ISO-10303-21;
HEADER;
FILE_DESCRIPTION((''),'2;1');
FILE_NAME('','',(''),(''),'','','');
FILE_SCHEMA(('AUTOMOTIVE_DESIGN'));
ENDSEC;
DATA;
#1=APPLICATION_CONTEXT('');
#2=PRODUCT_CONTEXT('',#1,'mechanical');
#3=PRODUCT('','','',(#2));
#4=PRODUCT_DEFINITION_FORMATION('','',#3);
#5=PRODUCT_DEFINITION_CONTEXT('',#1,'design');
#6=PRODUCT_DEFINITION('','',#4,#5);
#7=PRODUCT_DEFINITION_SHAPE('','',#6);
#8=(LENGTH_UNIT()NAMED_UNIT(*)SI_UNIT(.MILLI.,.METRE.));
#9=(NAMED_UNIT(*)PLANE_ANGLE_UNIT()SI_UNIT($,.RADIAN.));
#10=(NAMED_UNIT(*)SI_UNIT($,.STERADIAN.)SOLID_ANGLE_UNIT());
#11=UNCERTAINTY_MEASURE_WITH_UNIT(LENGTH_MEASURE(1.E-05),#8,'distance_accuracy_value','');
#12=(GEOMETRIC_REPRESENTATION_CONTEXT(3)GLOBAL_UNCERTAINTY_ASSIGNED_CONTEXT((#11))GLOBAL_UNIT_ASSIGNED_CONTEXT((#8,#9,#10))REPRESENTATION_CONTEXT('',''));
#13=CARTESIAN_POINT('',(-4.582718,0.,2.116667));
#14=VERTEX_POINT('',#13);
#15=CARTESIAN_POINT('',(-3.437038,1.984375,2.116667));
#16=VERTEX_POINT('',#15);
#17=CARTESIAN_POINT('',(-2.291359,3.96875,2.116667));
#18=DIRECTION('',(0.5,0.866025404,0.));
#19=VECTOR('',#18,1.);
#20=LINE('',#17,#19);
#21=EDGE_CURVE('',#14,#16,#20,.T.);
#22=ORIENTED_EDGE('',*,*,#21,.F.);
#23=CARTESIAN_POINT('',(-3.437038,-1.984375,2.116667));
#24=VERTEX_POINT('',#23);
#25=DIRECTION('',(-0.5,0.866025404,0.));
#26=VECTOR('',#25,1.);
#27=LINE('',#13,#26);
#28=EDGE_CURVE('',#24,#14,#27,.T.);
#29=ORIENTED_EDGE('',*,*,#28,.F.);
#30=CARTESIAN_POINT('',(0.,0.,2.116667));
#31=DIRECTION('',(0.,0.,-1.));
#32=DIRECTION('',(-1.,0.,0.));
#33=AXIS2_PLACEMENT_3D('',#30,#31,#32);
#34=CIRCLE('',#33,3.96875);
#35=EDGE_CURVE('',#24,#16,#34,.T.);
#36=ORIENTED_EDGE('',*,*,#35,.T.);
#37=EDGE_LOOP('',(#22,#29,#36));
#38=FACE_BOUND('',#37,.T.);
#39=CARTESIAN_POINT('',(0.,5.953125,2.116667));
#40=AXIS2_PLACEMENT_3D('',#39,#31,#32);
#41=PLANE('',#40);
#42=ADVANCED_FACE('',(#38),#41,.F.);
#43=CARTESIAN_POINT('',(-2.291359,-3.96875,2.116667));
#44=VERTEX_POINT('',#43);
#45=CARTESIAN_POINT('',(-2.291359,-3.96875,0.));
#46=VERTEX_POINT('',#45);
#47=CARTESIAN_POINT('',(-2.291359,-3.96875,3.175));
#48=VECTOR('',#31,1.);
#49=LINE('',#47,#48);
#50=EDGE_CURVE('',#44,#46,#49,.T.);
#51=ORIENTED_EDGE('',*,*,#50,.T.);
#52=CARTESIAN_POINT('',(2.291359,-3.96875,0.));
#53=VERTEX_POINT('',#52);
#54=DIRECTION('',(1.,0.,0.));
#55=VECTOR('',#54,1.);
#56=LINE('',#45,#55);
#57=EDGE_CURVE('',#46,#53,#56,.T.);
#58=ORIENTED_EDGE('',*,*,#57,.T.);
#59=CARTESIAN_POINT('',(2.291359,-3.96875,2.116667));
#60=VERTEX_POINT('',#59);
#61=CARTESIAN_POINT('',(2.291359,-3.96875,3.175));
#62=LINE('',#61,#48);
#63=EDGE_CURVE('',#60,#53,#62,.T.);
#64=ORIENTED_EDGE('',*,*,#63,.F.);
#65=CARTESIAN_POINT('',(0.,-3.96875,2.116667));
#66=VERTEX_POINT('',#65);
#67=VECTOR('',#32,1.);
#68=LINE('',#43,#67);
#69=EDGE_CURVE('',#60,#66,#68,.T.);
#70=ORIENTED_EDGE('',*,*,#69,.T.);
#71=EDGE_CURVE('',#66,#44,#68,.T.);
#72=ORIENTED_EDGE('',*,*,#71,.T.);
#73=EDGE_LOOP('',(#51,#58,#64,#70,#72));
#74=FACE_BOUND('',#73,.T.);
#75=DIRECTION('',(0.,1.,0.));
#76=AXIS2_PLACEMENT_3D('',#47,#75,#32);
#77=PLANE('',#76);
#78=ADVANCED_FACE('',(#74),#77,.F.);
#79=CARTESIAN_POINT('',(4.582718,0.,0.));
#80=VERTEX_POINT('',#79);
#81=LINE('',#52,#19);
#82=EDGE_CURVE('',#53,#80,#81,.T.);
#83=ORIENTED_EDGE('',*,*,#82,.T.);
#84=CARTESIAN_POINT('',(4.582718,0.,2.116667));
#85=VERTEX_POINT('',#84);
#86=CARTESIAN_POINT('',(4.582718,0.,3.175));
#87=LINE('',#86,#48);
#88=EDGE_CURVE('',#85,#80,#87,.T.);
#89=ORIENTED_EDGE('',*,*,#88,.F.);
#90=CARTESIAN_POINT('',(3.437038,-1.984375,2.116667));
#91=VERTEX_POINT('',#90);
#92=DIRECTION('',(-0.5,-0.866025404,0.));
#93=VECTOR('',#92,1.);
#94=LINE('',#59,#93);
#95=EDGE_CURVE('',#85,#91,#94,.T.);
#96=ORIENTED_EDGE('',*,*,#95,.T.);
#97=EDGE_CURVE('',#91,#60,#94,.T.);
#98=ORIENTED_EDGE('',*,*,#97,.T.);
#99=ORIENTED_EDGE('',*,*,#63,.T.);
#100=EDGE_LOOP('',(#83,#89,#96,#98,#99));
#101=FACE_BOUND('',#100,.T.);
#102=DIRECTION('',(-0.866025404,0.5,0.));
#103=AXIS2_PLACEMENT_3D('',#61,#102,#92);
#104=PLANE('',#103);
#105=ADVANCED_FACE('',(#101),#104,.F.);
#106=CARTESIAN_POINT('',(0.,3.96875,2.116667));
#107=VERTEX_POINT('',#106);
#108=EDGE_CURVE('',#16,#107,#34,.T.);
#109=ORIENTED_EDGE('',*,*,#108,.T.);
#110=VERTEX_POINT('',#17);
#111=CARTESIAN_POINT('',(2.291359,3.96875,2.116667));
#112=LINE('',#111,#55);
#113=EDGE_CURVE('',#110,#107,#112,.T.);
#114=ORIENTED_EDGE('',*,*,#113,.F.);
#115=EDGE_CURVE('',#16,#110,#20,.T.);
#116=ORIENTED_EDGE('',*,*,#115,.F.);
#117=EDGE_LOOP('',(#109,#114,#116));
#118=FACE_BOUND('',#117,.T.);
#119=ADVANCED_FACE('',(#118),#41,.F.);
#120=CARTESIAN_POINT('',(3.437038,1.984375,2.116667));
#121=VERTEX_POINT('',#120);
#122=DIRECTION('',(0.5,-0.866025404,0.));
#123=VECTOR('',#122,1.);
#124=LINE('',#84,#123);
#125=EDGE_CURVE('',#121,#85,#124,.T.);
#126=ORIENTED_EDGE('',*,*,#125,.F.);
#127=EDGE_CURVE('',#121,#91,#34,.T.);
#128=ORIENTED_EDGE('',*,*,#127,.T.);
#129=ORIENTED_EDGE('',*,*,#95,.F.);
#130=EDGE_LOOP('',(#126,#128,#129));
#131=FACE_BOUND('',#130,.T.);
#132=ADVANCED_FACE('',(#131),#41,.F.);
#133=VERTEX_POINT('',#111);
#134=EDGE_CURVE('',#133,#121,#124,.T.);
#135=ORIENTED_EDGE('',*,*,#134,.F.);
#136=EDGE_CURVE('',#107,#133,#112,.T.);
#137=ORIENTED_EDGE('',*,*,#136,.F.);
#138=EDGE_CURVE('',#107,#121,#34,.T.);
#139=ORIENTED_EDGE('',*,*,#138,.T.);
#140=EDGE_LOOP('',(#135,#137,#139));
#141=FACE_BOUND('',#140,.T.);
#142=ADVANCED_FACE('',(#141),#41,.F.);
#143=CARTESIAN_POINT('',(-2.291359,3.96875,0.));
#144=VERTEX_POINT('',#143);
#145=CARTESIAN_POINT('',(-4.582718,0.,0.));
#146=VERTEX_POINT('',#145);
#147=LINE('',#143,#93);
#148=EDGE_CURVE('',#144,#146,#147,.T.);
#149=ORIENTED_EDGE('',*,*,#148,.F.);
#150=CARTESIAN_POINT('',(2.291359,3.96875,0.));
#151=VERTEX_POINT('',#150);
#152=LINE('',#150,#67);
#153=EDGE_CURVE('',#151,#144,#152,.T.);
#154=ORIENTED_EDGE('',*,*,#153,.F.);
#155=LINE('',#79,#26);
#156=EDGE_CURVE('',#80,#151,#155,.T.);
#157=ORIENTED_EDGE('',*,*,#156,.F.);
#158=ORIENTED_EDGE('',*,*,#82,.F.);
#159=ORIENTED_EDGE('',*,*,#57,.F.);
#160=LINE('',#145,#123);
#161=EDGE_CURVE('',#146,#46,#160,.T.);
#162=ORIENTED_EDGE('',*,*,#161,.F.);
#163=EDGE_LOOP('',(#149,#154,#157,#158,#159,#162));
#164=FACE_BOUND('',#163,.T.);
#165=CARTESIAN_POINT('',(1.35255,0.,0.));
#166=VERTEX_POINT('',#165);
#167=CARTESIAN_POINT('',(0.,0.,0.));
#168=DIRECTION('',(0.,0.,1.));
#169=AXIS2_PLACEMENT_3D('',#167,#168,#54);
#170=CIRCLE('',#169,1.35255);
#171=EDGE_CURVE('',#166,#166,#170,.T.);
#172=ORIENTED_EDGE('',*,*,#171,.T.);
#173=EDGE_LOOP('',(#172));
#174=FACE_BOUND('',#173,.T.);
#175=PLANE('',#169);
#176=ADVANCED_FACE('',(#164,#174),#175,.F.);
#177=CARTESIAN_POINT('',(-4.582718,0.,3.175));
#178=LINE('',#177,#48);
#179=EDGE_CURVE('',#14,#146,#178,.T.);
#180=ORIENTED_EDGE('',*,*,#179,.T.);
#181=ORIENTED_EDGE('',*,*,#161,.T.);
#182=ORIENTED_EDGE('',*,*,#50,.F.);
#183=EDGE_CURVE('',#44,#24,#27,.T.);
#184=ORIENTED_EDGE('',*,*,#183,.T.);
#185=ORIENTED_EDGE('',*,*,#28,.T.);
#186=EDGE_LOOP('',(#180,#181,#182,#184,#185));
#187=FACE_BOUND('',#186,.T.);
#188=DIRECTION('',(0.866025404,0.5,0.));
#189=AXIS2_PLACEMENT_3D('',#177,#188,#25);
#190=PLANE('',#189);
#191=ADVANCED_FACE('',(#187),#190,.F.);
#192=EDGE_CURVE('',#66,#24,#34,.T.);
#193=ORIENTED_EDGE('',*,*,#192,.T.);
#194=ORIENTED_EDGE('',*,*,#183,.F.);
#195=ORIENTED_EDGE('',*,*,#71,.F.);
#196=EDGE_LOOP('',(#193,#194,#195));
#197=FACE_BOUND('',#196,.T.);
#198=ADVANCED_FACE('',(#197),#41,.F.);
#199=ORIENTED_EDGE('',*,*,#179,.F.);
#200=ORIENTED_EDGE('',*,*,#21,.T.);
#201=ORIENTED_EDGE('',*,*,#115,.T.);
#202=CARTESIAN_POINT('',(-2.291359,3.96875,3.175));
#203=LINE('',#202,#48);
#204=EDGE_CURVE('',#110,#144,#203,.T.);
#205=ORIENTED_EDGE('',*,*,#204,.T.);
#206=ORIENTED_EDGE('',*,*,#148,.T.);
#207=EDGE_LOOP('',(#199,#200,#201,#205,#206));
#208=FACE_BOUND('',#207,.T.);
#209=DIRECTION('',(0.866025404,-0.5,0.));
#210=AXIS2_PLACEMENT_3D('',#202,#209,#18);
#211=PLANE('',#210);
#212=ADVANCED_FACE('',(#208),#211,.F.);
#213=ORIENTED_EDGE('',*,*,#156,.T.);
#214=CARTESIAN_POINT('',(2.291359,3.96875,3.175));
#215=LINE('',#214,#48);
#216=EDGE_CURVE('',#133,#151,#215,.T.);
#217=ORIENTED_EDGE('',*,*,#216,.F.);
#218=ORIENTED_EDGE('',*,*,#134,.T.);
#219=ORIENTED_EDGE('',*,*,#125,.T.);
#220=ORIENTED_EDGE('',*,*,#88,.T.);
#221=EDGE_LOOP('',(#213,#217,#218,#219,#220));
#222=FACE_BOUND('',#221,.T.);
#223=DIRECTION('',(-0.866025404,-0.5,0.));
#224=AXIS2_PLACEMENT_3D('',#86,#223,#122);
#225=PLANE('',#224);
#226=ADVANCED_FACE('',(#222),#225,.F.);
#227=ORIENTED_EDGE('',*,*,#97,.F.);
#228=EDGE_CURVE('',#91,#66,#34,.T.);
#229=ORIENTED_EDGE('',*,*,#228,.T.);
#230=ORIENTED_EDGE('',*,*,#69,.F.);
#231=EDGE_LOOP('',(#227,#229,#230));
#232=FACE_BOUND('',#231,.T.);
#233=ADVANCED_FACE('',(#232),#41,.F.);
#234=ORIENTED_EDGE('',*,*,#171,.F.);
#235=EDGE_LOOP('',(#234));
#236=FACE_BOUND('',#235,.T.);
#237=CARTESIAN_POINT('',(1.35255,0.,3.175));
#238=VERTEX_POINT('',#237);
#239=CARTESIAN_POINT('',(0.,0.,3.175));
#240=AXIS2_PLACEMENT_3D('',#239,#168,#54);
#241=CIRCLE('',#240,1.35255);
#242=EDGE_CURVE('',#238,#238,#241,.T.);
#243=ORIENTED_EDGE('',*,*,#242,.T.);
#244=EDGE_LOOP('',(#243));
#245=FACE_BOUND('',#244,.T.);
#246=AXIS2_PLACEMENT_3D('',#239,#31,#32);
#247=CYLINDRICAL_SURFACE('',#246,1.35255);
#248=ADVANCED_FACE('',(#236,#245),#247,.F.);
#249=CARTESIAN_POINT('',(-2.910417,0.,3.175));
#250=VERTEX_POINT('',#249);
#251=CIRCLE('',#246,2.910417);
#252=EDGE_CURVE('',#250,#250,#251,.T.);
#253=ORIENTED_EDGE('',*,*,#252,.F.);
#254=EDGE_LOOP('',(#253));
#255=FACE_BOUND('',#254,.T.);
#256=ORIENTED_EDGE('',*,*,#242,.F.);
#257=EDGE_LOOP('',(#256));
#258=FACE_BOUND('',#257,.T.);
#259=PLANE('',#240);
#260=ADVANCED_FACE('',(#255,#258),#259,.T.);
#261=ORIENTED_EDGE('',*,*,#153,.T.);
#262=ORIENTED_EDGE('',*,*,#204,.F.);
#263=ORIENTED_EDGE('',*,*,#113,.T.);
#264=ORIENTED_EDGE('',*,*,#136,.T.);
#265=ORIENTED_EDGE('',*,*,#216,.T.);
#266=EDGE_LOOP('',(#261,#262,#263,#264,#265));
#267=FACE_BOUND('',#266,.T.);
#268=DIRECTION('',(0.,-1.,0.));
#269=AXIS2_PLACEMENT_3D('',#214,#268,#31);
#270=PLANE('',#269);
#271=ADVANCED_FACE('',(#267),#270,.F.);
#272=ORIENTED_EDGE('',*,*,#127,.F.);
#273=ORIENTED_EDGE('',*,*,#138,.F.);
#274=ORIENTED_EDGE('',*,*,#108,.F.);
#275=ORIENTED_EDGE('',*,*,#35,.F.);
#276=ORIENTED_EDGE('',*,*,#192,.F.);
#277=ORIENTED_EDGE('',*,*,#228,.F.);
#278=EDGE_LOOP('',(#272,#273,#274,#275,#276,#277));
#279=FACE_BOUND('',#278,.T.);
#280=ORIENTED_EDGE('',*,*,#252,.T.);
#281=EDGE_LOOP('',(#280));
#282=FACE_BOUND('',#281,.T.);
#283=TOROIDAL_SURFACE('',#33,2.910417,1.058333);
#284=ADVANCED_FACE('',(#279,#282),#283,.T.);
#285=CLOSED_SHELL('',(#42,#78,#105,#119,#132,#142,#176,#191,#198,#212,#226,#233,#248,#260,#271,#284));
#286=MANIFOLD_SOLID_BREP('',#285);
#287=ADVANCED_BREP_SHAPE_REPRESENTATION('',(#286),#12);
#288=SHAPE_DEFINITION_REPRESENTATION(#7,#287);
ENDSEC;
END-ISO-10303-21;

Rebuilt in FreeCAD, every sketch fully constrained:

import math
import FreeCAD as App
import Part
import Sketcher
Q = App.Units.Quantity

doc = App.newDocument("Part")
body = doc.addObject("PartDesign::Body", "Body")

sketch1 = body.newObject("Sketcher::SketchObject", "Sketch")
sketch1.AttachmentSupport = (doc.getObject("XY_Plane"), [""])
sketch1.MapMode = "FlatFace"
sketch1.addGeometry(Part.LineSegment(App.Vector(2.3, 4, 0), App.Vector(-2.3, 4, 0)), False)
sketch1.addGeometry(Part.LineSegment(App.Vector(-2.3, 4, 0), App.Vector(-4.6, 0, 0)), False)
sketch1.addGeometry(Part.LineSegment(App.Vector(-4.6, 0, 0), App.Vector(-2.3, -4, 0)), False)
sketch1.addGeometry(Part.LineSegment(App.Vector(-2.3, -4, 0), App.Vector(2.3, -4, 0)), False)
sketch1.addGeometry(Part.LineSegment(App.Vector(2.3, -4, 0), App.Vector(4.6, 0, 0)), False)
sketch1.addGeometry(Part.LineSegment(App.Vector(4.6, 0, 0), App.Vector(2.3, 4, 0)), False)
sketch1.addGeometry(Part.Circle(App.Vector(0, 0, 0), App.Vector(0, 0, 1), 1.4), False)
sketch1.addConstraint(Sketcher.Constraint("Coincident", 0, 2, 1, 1))
sketch1.addConstraint(Sketcher.Constraint("Coincident", 1, 2, 2, 1))
sketch1.addConstraint(Sketcher.Constraint("Coincident", 2, 2, 3, 1))
sketch1.addConstraint(Sketcher.Constraint("Coincident", 3, 2, 4, 1))
sketch1.addConstraint(Sketcher.Constraint("Coincident", 4, 2, 5, 1))
sketch1.addConstraint(Sketcher.Constraint("Coincident", 5, 2, 0, 1))
sketch1.addConstraint(Sketcher.Constraint("Horizontal", 0))
sketch1.addConstraint(Sketcher.Constraint("Horizontal", 3))
sketch1.addConstraint(Sketcher.Constraint("Coincident", 6, 3, -1, 1))
sketch1.addConstraint(Sketcher.Constraint("Symmetric", 0, 2, 3, 2, -1, 1))
sketch1.addConstraint(Sketcher.Constraint("Symmetric", 1, 2, 4, 2, -1, 1))
sketch1.addConstraint(Sketcher.Constraint("PointOnObject", 1, 2, -1))
sketch1.addConstraint(Sketcher.Constraint("Parallel", 2, 5))
sketch1.addConstraint(Sketcher.Constraint("Vertical", 0, 2, 2, 2))
sketch1.addConstraint(Sketcher.Constraint("Angle", 1, Q("-120 deg")))
sketch1.addConstraint(Sketcher.Constraint("Diameter", 6, Q("0.1065 in")))
sketch1.addConstraint(Sketcher.Constraint("DistanceY", -1, 1, 0, 2, Q("0.15625 in")))
sketch1.addConstraint(Sketcher.Constraint("DistanceX", 0, 2, 0, 1, Q("4.582718 mm")))
pad1 = body.newObject("PartDesign::Pad", "Pad")
pad1.Profile = sketch1
pad1.Length = Q("0.125 in")

sketch2 = body.newObject("Sketcher::SketchObject", "Sketch001")
sketch2.AttachmentSupport = (doc.getObject("YZ_Plane"), [""])
sketch2.MapMode = "FlatFace"
sketch2.addGeometry(Part.ArcOfCircle(Part.Circle(App.Vector(2.9, 2.1, 0), App.Vector(0, 0, 1), 1.1), math.radians(0), math.radians(90)), False)
sketch2.addGeometry(Part.LineSegment(App.Vector(4, 2.1, 0), App.Vector(6, 2.1, 0)), False)
sketch2.addGeometry(Part.LineSegment(App.Vector(6, 2.1, 0), App.Vector(6, 3.2, 0)), False)
sketch2.addGeometry(Part.LineSegment(App.Vector(6, 3.2, 0), App.Vector(2.9, 3.2, 0)), False)
sketch2.addConstraint(Sketcher.Constraint("Coincident", 0, 1, 1, 1))
sketch2.addConstraint(Sketcher.Constraint("Coincident", 1, 2, 2, 1))
sketch2.addConstraint(Sketcher.Constraint("Coincident", 2, 2, 3, 1))
sketch2.addConstraint(Sketcher.Constraint("Tangent", 3, 2, 0, 2))
sketch2.addConstraint(Sketcher.Constraint("Horizontal", 1))
sketch2.addConstraint(Sketcher.Constraint("Vertical", 2))
sketch2.addConstraint(Sketcher.Constraint("Horizontal", 3))
sketch2.addConstraint(Sketcher.Constraint("DistanceX", 1, 1, 1, 2, Q("0.078125 in")))
sketch2.addConstraint(Sketcher.Constraint("DistanceX", -1, 1, 0, 1, Q("0.15625 in")))
sketch2.addConstraint(Sketcher.Constraint("DistanceY", -1, 1, 2, 2, Q("0.125 in")))
sketch2.addConstraint(Sketcher.Constraint("Radius", 0, Q("1.058333 mm")))
sketch2.addConstraint(Sketcher.Constraint("DistanceY", 2, 1, 2, 2, Q("1.058333 mm")))
groove = body.newObject("PartDesign::Groove", "Groove")
groove.Profile = sketch2
groove.ReferenceAxis = (sketch2, ["V_Axis"])
groove.Angle = 360

doc.recompute()
